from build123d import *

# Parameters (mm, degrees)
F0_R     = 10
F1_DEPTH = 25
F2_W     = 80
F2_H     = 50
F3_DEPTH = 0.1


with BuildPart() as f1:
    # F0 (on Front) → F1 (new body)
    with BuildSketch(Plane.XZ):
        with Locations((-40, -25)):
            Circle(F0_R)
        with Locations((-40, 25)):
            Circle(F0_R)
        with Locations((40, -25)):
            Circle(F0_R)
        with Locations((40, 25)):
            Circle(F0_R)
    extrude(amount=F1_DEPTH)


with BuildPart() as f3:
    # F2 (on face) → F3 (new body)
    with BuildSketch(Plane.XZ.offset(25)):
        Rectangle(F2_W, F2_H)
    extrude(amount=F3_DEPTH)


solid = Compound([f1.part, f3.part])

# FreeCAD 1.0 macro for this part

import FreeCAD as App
import Part
import Sketcher
from FreeCAD import Vector


def add_polygon(sketch, points):
    """Adds a closed chain of lines whose ends are joined by coincident constraints."""
    first, n = sketch.GeometryCount, len(points)
    for a, b in zip(points, points[1:] + points[:1]):
        sketch.addGeometry(Part.LineSegment(App.Vector(*a, 0), App.Vector(*b, 0)), False)
    for i in range(n):
        sketch.addConstraint(Sketcher.Constraint("Coincident", first + i, 2, first + (i + 1) % n, 1))

doc = App.newDocument("Part")
body = doc.addObject("PartDesign::Body", "Body")
body.AllowCompound = True

sketch1 = doc.addObject("Sketcher::SketchObject", "Sketch")
body.addObject(sketch1)
sketch1.AttachmentSupport = (doc.XZ_Plane, [""])
sketch1.MapMode = "FlatFace"
sketch1.addGeometry(Part.Circle(Vector(-40, -25, 0), Vector(0, 0, 1), 10), False)
sketch1.addGeometry(Part.Circle(Vector(-40, 25, 0), Vector(0, 0, 1), 10), False)
sketch1.addGeometry(Part.Circle(Vector(40, -25, 0), Vector(0, 0, 1), 10), False)
sketch1.addGeometry(Part.Circle(Vector(40, 25, 0), Vector(0, 0, 1), 10), False)
sketch1.addConstraint(Sketcher.Constraint("Equal", 0, 1))
sketch1.addConstraint(Sketcher.Constraint("Equal", 1, 2))
sketch1.addConstraint(Sketcher.Constraint("Equal", 2, 3))
sketch1.addConstraint(Sketcher.Constraint("Symmetric", 1, 3, 2, 3, -1, 1))
sketch1.addConstraint(Sketcher.Constraint("Symmetric", 0, 3, 3, 3, -1, 1))
sketch1.addConstraint(Sketcher.Constraint("Symmetric", 0, 3, 2, 3, -2))
sketch1.addConstraint(Sketcher.Constraint("Diameter", 0, 20.0))
sketch1.addConstraint(Sketcher.Constraint("DistanceX", 0, 3, -1, 1, 40.0))
sketch1.addConstraint(Sketcher.Constraint("DistanceY", 0, 3, -1, 1, 25.0))
pad1 = doc.addObject("PartDesign::Pad", "Pad")
body.addObject(pad1)
pad1.Profile = sketch1
pad1.Length = 25
body2 = doc.addObject("PartDesign::Body", "Body001")

sketch2 = doc.addObject("Sketcher::SketchObject", "Sketch001")
body2.addObject(sketch2)
sketch2.AttachmentSupport = (doc.getObject("XZ_Plane001"), [""])
sketch2.MapMode = "FlatFace"
sketch2.AttachmentOffset = App.Placement(Vector(0, 0, 25), App.Rotation())
add_polygon(sketch2, [(-40, 25), (-40, -25), (40, -25), (40, 25)])
sketch2.addConstraint(Sketcher.Constraint("Vertical", 0))
sketch2.addConstraint(Sketcher.Constraint("Horizontal", 1))
sketch2.addConstraint(Sketcher.Constraint("Vertical", 2))
sketch2.addConstraint(Sketcher.Constraint("Horizontal", 3))
sketch2.addConstraint(Sketcher.Constraint("Symmetric", 0, 2, 2, 2, -1, 1))
sketch2.addConstraint(Sketcher.Constraint("DistanceX", 1, 1, 1, 2, 80.0))
sketch2.addConstraint(Sketcher.Constraint("DistanceY", 0, 2, 0, 1, 50.0))
pad2 = doc.addObject("PartDesign::Pad", "Pad001")
body2.addObject(pad2)
pad2.Profile = sketch2
pad2.Length = 0.1

doc.recompute()
